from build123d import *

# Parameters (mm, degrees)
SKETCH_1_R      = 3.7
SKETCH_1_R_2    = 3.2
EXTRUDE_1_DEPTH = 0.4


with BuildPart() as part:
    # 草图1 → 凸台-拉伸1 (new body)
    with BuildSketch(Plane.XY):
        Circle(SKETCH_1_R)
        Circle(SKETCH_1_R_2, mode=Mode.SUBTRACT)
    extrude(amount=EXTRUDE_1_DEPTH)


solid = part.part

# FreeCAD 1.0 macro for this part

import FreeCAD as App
import Part
import Sketcher
Q = App.Units.Quantity

doc = App.newDocument("Part")
params = doc.addObject("Spreadsheet::Sheet", "Params")
for row, (alias, value) in enumerate([
    ("sketch1_diameter", "7.4 mm"),
    ("sketch1_diameter2", "6.4 mm"),
    ("pad1_length", "0.4 mm"),
], start=1):
    params.set(f"A{row}", alias)
    params.set(f"B{row}", "=" + value)
    params.setAlias(f"B{row}", alias)

body = doc.addObject("PartDesign::Body", "Body")

sketch1 = doc.addObject("Sketcher::SketchObject", "Sketch")
body.addObject(sketch1)
sketch1.AttachmentSupport = (doc.XY_Plane, [""])
sketch1.MapMode = "FlatFace"
sketch1.addGeometry([
    Part.Circle(App.Vector(0, 0, 0), App.Vector(0, 0, 1), 3.7),
    Part.Circle(App.Vector(0, 0, 0), App.Vector(0, 0, 1), 3.2),
], False)
sketch1.addConstraint([
    Sketcher.Constraint("Coincident", 0, 3, -1, 1),
    Sketcher.Constraint("Coincident", 1, 3, -1, 1),
    Sketcher.Constraint("Diameter", 0, Q("7.4 mm")),
    Sketcher.Constraint("Diameter", 1, Q("6.4 mm")),
])
sketch1.setExpression("Constraints[2]", "Params.sketch1_diameter")
sketch1.setExpression("Constraints[3]", "Params.sketch1_diameter2")
pad1 = doc.addObject("PartDesign::Pad", "Pad")
body.addObject(pad1)
pad1.Profile = sketch1
pad1.setExpression("Length", "Params.pad1_length")

doc.recompute()
